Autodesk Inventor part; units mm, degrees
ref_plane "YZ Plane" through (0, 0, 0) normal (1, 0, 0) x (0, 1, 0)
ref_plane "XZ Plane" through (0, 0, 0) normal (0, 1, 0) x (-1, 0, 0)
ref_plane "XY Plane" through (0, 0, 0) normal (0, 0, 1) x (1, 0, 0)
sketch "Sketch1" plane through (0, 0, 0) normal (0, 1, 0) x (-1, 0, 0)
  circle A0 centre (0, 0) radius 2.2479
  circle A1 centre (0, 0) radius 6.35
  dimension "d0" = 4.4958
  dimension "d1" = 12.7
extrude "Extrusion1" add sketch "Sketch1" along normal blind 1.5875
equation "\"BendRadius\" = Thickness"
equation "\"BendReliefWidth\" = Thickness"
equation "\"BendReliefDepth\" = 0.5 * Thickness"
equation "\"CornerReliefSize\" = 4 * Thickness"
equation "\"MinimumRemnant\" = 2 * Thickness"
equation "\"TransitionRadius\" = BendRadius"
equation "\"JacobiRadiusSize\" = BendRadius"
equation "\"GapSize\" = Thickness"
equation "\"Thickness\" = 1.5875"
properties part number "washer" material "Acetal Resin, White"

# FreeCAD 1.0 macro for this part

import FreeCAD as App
import Part
import Sketcher

V = App.Vector
Q = App.Units.Quantity

doc = App.newDocument("Part")
body = doc.addObject("PartDesign::Body", "Body")

sketch1 = doc.addObject("Sketcher::SketchObject", "Sketch")
body.addObject(sketch1)
sketch1.AttachmentSupport = (doc.XZ_Plane, [""])
sketch1.MapMode = "FlatFace"
sketch1.addGeometry(Part.Circle(V(0, 0, 0), V(0, 0, 1), 6.3), False)
sketch1.addGeometry(Part.Circle(V(0, 0, 0), V(0, 0, 1), 2.2), False)
sketch1.addConstraint(Sketcher.Constraint("Coincident", 0, 3, -1, 1))
sketch1.addConstraint(Sketcher.Constraint("Coincident", 1, 3, -1, 1))
sketch1.addConstraint(Sketcher.Constraint("Diameter", 0, Q("0.5 in")))
sketch1.addConstraint(Sketcher.Constraint("Diameter", 1, Q("0.177 in")))
pad1 = doc.addObject("PartDesign::Pad", "Pad")
body.addObject(pad1)
pad1.Profile = sketch1
pad1.Length = Q("0.0625 in")
pad1.Reversed = True

doc.recompute()
